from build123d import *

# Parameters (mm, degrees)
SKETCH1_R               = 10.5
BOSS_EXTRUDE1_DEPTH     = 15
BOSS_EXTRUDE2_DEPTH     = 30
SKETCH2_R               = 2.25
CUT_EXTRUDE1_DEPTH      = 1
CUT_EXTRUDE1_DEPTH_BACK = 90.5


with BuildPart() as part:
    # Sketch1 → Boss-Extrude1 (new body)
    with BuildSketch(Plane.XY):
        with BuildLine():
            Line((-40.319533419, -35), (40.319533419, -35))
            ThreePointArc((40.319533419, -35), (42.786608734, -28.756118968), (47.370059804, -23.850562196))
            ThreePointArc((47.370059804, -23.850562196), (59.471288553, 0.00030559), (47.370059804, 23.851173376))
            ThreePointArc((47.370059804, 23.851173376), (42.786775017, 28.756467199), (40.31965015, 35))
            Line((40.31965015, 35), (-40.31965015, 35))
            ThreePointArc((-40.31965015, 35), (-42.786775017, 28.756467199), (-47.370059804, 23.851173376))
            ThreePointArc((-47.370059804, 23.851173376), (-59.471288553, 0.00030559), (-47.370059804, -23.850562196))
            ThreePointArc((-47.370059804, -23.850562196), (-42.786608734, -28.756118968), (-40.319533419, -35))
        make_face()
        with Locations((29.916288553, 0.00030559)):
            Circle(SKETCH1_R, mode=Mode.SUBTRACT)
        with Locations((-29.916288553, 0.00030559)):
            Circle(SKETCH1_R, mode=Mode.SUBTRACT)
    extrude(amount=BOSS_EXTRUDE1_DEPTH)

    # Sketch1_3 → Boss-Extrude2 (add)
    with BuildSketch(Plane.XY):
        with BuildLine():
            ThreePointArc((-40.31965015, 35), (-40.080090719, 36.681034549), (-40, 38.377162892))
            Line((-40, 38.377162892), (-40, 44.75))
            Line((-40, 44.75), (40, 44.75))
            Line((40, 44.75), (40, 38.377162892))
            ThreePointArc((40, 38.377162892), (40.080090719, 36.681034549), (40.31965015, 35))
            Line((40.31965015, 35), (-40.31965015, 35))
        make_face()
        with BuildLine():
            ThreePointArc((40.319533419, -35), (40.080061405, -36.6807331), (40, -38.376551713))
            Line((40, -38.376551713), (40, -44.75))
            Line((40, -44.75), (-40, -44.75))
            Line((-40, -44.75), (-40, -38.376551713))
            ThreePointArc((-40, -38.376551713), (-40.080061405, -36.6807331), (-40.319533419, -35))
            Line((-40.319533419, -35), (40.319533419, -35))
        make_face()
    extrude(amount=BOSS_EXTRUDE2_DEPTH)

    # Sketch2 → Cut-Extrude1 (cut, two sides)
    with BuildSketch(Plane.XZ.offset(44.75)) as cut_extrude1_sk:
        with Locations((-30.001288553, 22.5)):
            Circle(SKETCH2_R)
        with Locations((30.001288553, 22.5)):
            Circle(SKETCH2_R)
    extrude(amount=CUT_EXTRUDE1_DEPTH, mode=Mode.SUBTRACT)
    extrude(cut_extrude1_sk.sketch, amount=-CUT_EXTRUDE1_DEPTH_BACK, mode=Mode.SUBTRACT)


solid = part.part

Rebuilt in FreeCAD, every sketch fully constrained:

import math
import FreeCAD as App
import Part
import Sketcher

V = App.Vector

doc = App.newDocument("Part")
body = doc.addObject("PartDesign::Body", "Body")

sketch1 = doc.addObject("Sketcher::SketchObject", "Sketch")
body.addObject(sketch1)
sketch1.AttachmentSupport = (doc.XY_Plane, [""])
sketch1.MapMode = "FlatFace"
sketch1.addGeometry(Part.LineSegment(V(-40, -35, 0), V(40, -35, 0)), False)
sketch1.addGeometry(Part.ArcOfCircle(Part.Circle(V(58, -38, 0), V(0, 0, 1), 18), math.radians(126), math.radians(169)), False)
sketch1.addGeometry(Part.ArcOfCircle(Part.Circle(V(30, 0, 0), V(0, 0, 1), 30), math.radians(-54), math.radians(54)), False)
sketch1.addGeometry(Part.ArcOfCircle(Part.Circle(V(58, 38, 0), V(0, 0, 1), 18), math.radians(-169), math.radians(-126)), False)
sketch1.addGeometry(Part.LineSegment(V(40, 35, 0), V(-40, 35, 0)), False)
sketch1.addGeometry(Part.ArcOfCircle(Part.Circle(V(-58, 38, 0), V(0, 0, 1), 18), math.radians(-54), math.radians(-11)), False)
sketch1.addGeometry(Part.ArcOfCircle(Part.Circle(V(-30, 0, 0), V(0, 0, 1), 30), math.radians(126), math.radians(234)), False)
sketch1.addGeometry(Part.ArcOfCircle(Part.Circle(V(-58, -38, 0), V(0, 0, 1), 18), math.radians(11), math.radians(54)), False)
sketch1.addGeometry(Part.Circle(V(-30, 0, 0), V(0, 0, 1), 10), False)
sketch1.addGeometry(Part.Circle(V(30, 0, 0), V(0, 0, 1), 10), False)
sketch1.addConstraint(Sketcher.Constraint("Coincident", 0, 2, 1, 2))
sketch1.addConstraint(Sketcher.Constraint("Tangent", 1, 1, 2, 1))
sketch1.addConstraint(Sketcher.Constraint("Tangent", 2, 2, 3, 2))
sketch1.addConstraint(Sketcher.Constraint("Coincident", 3, 1, 4, 1))
sketch1.addConstraint(Sketcher.Constraint("Coincident", 4, 2, 5, 2))
sketch1.addConstraint(Sketcher.Constraint("Tangent", 5, 1, 6, 1))
sketch1.addConstraint(Sketcher.Constraint("Tangent", 6, 2, 7, 2))
sketch1.addConstraint(Sketcher.Constraint("Coincident", 7, 1, 0, 1))
sketch1.addConstraint(Sketcher.Constraint("Horizontal", 0))
sketch1.addConstraint(Sketcher.Constraint("Horizontal", 4))
sketch1.addConstraint(Sketcher.Constraint("Coincident", 8, 3, 6, 3))
sketch1.addConstraint(Sketcher.Constraint("Coincident", 9, 3, 2, 3))
sketch1.addConstraint(Sketcher.Constraint("Equal", 1, 3))
sketch1.addConstraint(Sketcher.Constraint("Equal", 3, 5))
sketch1.addConstraint(Sketcher.Constraint("Equal", 2, 6))
sketch1.addConstraint(Sketcher.Constraint("Equal", 5, 7))
sketch1.addConstraint(Sketcher.Constraint("Equal", 8, 9))
sketch1.addConstraint(Sketcher.Constraint("Symmetric", 3, 3, 5, 3, -2))
sketch1.addConstraint(Sketcher.Constraint("Symmetric", 1, 3, 7, 3, -2))
sketch1.addConstraint(Sketcher.Constraint("Vertical", 1, 3, 3, 3))
sketch1.addConstraint(Sketcher.Constraint("Diameter", 8, 21.0))
sketch1.addConstraint(Sketcher.Constraint("Radius", 1, 18.0))
sketch1.addConstraint(Sketcher.Constraint("DistanceX", -1, 1, 1, 3, 58.0))
sketch1.addConstraint(Sketcher.Constraint("DistanceY", 0, 2, -1, 1, 35.0))
sketch1.addConstraint(Sketcher.Constraint("DistanceY", -1, 1, 3, 1, 35.0))
sketch1.addConstraint(Sketcher.Constraint("Radius", 2, 29.555))
sketch1.addConstraint(Sketcher.Constraint("DistanceX", 4, 2, 4, 1, 80.6393))
sketch1.addConstraint(Sketcher.Constraint("DistanceX", 0, 1, 0, 2, 80.639067))
pad1 = doc.addObject("PartDesign::Pad", "Pad")
body.addObject(pad1)
pad1.Profile = sketch1
pad1.Length = 15

sketch2 = doc.addObject("Sketcher::SketchObject", "Sketch001")
body.addObject(sketch2)
sketch2.AttachmentSupport = (doc.XY_Plane, [""])
sketch2.MapMode = "FlatFace"
sketch2.addGeometry(Part.ArcOfCircle(Part.Circle(V(-58, 38.4, 0), V(0, 0, 1), 18), math.radians(-10.81), math.radians(0)), False)
sketch2.addGeometry(Part.LineSegment(V(-40.3, 35, 0), V(40.3, 35, 0)), False)
sketch2.addGeometry(Part.ArcOfCircle(Part.Circle(V(58, 38.4, 0), V(0, 0, 1), 18), math.radians(-180), math.radians(-169.19)), False)
sketch2.addGeometry(Part.LineSegment(V(40, 38.4, 0), V(40, 44.8, 0)), False)
sketch2.addGeometry(Part.LineSegment(V(40, 44.8, 0), V(-40, 44.8, 0)), False)
sketch2.addGeometry(Part.LineSegment(V(-40, 44.8, 0), V(-40, 38.4, 0)), False)
sketch2.addGeometry(Part.ArcOfCircle(Part.Circle(V(58, -38.4, 0), V(0, 0, 1), 18), math.radians(169.19), math.radians(180)), False)
sketch2.addGeometry(Part.LineSegment(V(40.3, -35, 0), V(-40.3, -35, 0)), False)
sketch2.addGeometry(Part.ArcOfCircle(Part.Circle(V(-58, -38.4, 0), V(0, 0, 1), 18), math.radians(0), math.radians(10.81)), False)
sketch2.addGeometry(Part.LineSegment(V(-40, -38.4, 0), V(-40, -44.8, 0)), False)
sketch2.addGeometry(Part.LineSegment(V(-40, -44.8, 0), V(40, -44.8, 0)), False)
sketch2.addGeometry(Part.LineSegment(V(40, -44.8, 0), V(40, -38.4, 0)), False)
sketch2.addConstraint(Sketcher.Constraint("Coincident", 0, 1, 1, 1))
sketch2.addConstraint(Sketcher.Constraint("Coincident", 1, 2, 2, 2))
sketch2.addConstraint(Sketcher.Constraint("Tangent", 2, 1, 3, 1))
sketch2.addConstraint(Sketcher.Constraint("Coincident", 3, 2, 4, 1))
sketch2.addConstraint(Sketcher.Constraint("Coincident", 4, 2, 5, 1))
sketch2.addConstraint(Sketcher.Constraint("Tangent", 5, 2, 0, 2))
sketch2.addConstraint(Sketcher.Constraint("Coincident", 6, 1, 7, 1))
sketch2.addConstraint(Sketcher.Constraint("Coincident", 7, 2, 8, 2))
sketch2.addConstraint(Sketcher.Constraint("Tangent", 8, 1, 9, 1))
sketch2.addConstraint(Sketcher.Constraint("Coincident", 9, 2, 10, 1))
sketch2.addConstraint(Sketcher.Constraint("Coincident", 10, 2, 11, 1))
sketch2.addConstraint(Sketcher.Constraint("Tangent", 11, 2, 6, 2))
sketch2.addConstraint(Sketcher.Constraint("Horizontal", 1))
sketch2.addConstraint(Sketcher.Constraint("Vertical", 3))
sketch2.addConstraint(Sketcher.Constraint("Horizontal", 4))
sketch2.addConstraint(Sketcher.Constraint("Vertical", 5))
sketch2.addConstraint(Sketcher.Constraint("Horizontal", 7))
sketch2.addConstraint(Sketcher.Constraint("Vertical", 9))
sketch2.addConstraint(Sketcher.Constraint("Horizontal", 10))
sketch2.addConstraint(Sketcher.Constraint("Vertical", 11))
sketch2.addConstraint(Sketcher.Constraint("Equal", 0, 2))
sketch2.addConstraint(Sketcher.Constraint("Equal", 2, 6))
sketch2.addConstraint(Sketcher.Constraint("Equal", 6, 8))
sketch2.addConstraint(Sketcher.Constraint("Symmetric", 3, 2, 9, 2, -1, 1))
sketch2.addConstraint(Sketcher.Constraint("Symmetric", 0, 3, 2, 3, -2))
sketch2.addConstraint(Sketcher.Constraint("Symmetric", 6, 3, 8, 3, -2))
sketch2.addConstraint(Sketcher.Constraint("Radius", 0, 18.0))
sketch2.addConstraint(Sketcher.Constraint("DistanceX", 4, 2, 4, 1, 80.0))
sketch2.addConstraint(Sketcher.Constraint("DistanceY", -1, 1, 0, 1, 35.0))
sketch2.addConstraint(Sketcher.Constraint("DistanceY", 6, 1, -1, 1, 35.0))
sketch2.addConstraint(Sketcher.Constraint("DistanceY", -1, 1, 3, 2, 44.75))
sketch2.addConstraint(Sketcher.Constraint("DistanceX", 1, 1, 1, 2, 80.6393))
sketch2.addConstraint(Sketcher.Constraint("DistanceY", 9, 2, 9, 1, 6.373448))
pad2 = doc.addObject("PartDesign::Pad", "Pad001")
body.addObject(pad2)
pad2.Profile = sketch2
pad2.Length = 30

sketch3 = doc.addObject("Sketcher::SketchObject", "Sketch002")
body.addObject(sketch3)
sketch3.AttachmentSupport = (doc.XZ_Plane, [""])
sketch3.MapMode = "FlatFace"
sketch3.AttachmentOffset = App.Placement(V(0, 0, 44.75), App.Rotation())
sketch3.addGeometry(Part.Circle(V(-30, 22.5, 0), V(0, 0, 1), 2.2), False)
sketch3.addGeometry(Part.Circle(V(30, 22.5, 0), V(0, 0, 1), 2.2), False)
sketch3.addConstraint(Sketcher.Constraint("Equal", 0, 1))
sketch3.addConstraint(Sketcher.Constraint("Symmetric", 0, 3, 1, 3, -2))
sketch3.addConstraint(Sketcher.Constraint("Diameter", 0, 4.5))
sketch3.addConstraint(Sketcher.Constraint("DistanceY", -1, 1, 0, 3, 22.5))
sketch3.addConstraint(Sketcher.Constraint("DistanceX", 0, 3, -1, 1, 30.001289))
pocket1 = doc.addObject("PartDesign::Pocket", "Pocket")
body.addObject(pocket1)
pocket1.Profile = sketch3
pocket1.Type = "ThroughAll"
pocket1.Midplane = True

doc.recompute()
